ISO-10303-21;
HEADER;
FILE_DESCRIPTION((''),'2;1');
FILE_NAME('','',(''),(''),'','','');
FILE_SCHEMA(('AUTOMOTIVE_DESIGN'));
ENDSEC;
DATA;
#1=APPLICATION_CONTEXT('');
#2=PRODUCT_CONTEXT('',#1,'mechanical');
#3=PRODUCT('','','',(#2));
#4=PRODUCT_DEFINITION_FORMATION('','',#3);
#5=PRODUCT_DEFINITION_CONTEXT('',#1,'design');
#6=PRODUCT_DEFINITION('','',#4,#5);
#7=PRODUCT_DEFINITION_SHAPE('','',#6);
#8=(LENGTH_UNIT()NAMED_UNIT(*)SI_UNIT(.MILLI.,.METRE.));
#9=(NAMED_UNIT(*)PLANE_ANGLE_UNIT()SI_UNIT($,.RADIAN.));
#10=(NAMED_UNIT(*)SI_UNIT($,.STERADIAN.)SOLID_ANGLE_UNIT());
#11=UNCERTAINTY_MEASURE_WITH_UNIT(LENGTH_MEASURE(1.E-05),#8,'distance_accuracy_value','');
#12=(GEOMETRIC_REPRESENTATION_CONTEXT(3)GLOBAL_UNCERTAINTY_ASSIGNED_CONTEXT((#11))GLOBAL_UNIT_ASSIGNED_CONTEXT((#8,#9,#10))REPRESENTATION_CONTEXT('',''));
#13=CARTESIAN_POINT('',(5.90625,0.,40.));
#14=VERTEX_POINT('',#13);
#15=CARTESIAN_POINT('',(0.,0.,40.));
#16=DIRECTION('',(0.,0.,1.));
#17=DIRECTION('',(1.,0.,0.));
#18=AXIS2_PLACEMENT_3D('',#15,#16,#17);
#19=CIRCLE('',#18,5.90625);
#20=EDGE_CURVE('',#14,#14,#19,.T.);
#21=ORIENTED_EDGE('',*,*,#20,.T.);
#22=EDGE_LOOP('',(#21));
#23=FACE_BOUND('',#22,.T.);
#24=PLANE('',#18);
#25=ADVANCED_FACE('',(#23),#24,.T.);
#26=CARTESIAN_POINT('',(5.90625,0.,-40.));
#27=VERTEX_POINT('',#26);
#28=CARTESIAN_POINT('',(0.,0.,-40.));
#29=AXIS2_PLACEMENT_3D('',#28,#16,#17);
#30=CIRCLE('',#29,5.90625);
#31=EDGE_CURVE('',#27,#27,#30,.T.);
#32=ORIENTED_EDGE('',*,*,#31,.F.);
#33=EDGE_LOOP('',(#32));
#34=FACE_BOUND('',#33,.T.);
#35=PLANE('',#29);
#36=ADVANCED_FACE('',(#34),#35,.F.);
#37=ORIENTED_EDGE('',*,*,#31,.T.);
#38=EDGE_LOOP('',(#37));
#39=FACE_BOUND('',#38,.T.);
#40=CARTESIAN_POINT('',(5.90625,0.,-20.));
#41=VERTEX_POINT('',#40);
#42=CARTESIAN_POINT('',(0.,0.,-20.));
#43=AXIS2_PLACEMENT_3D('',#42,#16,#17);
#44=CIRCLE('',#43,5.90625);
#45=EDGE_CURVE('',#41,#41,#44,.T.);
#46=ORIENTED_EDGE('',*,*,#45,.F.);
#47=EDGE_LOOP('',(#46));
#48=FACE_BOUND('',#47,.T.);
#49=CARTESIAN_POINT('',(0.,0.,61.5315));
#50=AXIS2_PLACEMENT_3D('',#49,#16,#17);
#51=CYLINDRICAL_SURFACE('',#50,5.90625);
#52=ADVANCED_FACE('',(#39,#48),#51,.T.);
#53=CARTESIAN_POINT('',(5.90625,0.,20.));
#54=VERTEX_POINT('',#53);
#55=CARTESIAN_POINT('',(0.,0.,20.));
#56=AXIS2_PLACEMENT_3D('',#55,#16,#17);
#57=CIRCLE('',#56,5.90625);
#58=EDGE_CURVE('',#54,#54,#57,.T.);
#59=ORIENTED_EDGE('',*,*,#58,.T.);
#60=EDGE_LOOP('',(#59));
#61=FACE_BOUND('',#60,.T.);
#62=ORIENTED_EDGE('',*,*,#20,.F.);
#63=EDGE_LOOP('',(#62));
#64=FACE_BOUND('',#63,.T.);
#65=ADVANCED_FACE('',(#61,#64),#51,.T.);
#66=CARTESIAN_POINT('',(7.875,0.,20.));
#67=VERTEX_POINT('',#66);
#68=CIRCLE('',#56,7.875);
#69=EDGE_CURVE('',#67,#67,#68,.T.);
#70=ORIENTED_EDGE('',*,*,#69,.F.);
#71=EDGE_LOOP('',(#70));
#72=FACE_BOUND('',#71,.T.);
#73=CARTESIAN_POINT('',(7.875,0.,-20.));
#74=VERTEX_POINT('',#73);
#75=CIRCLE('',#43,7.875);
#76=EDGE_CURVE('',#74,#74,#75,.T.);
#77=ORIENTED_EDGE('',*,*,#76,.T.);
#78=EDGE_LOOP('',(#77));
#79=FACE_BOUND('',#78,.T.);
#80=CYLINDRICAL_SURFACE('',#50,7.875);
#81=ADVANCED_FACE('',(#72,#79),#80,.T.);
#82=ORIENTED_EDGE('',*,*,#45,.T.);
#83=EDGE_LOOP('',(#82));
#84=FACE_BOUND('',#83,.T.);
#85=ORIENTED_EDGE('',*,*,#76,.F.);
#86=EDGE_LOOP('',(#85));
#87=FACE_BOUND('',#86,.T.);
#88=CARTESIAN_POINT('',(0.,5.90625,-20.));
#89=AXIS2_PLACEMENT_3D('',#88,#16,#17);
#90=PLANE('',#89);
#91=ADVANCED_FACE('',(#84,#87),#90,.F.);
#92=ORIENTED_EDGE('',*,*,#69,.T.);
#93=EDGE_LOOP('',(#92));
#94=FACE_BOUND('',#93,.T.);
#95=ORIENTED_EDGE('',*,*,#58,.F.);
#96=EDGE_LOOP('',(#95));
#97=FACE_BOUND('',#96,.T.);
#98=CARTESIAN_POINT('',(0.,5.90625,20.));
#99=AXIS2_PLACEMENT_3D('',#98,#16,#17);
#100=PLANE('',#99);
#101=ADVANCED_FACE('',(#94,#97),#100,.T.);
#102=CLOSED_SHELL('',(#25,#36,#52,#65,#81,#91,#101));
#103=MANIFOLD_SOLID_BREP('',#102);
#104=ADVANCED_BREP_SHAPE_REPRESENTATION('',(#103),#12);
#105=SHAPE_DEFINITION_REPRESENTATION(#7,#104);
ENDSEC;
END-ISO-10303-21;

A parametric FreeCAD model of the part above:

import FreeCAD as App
import Part
import Sketcher
Q = App.Units.Quantity

doc = App.newDocument("Part")
params = doc.addObject("Spreadsheet::Sheet", "Params")
for row, (alias, value) in enumerate([
    ("sketch1_height", "80 mm"),
    ("sketch1_height2", "20 mm"),
    ("revolution_angle", "360 deg"),
], start=1):
    params.set(f"A{row}", alias)
    params.set(f"B{row}", "=" + value)
    params.setAlias(f"B{row}", alias)

body = doc.addObject("PartDesign::Body", "Body")

# Sketch on YZ plane
sketch1 = body.newObject("Sketcher::SketchObject", "Sketch")
sketch1.AttachmentSupport = (doc.getObject("YZ_Plane"), [""])
sketch1.MapMode = "FlatFace"
sketch1.addGeometry([
    Part.LineSegment(App.Vector(5.90625, 40, 0), App.Vector(0, 40, 0)),  # 0
    Part.LineSegment(App.Vector(0, 40, 0), App.Vector(0, -40, 0)),  # 1
    Part.LineSegment(App.Vector(0, -40, 0), App.Vector(5.90625, -40, 0)),  # 2
    Part.LineSegment(App.Vector(5.90625, -40, 0), App.Vector(5.90625, -20, 0)),  # 3
    Part.LineSegment(App.Vector(5.90625, -20, 0), App.Vector(7.875, -20, 0)),  # 4
    Part.LineSegment(App.Vector(7.875, -20, 0), App.Vector(7.875, 20, 0)),  # 5
    Part.LineSegment(App.Vector(7.875, 20, 0), App.Vector(5.90625, 20, 0)),  # 6
    Part.LineSegment(App.Vector(5.90625, 20, 0), App.Vector(5.90625, 40, 0)),  # 7
], False)
sketch1.addConstraint([
    Sketcher.Constraint("Coincident", 0, 2, 1, 1),
    Sketcher.Constraint("Coincident", 1, 2, 2, 1),
    Sketcher.Constraint("Coincident", 2, 2, 3, 1),
    Sketcher.Constraint("Coincident", 3, 2, 4, 1),
    Sketcher.Constraint("Coincident", 4, 2, 5, 1),
    Sketcher.Constraint("Coincident", 5, 2, 6, 1),
    Sketcher.Constraint("Coincident", 6, 2, 7, 1),
    Sketcher.Constraint("Coincident", 7, 2, 0, 1),
    Sketcher.Constraint("Horizontal", 0),
    Sketcher.Constraint("Vertical", 1),
    Sketcher.Constraint("Horizontal", 2),
    Sketcher.Constraint("Vertical", 3),
    Sketcher.Constraint("Horizontal", 4),
    Sketcher.Constraint("Vertical", 5),
    Sketcher.Constraint("Horizontal", 6),
    Sketcher.Constraint("Vertical", 7),
    Sketcher.Constraint("Symmetric", 0, 2, 1, 2, -1, 1),
    Sketcher.Constraint("Symmetric", 3, 2, 6, 2, -1),
    Sketcher.Constraint("DistanceY", 1, 2, 1, 1, Q("80 mm")),
    Sketcher.Constraint("DistanceY", 3, 1, 3, 2, Q("20 mm")),
    Sketcher.Constraint("DistanceX", -1, 1, 4, 2, Q("7.875 mm")),
    Sketcher.Constraint("DistanceX", 0, 2, 0, 1, Q("5.90625 mm")),
])
sketch1.setExpression("Constraints[18]", "Params.sketch1_height")
sketch1.setExpression("Constraints[19]", "Params.sketch1_height2")
revolution = body.newObject("PartDesign::Revolution", "Revolution")
revolution.Profile = sketch1
revolution.ReferenceAxis = (sketch1, ["V_Axis"])
revolution.setExpression("Angle", "Params.revolution_angle")

doc.recompute()
